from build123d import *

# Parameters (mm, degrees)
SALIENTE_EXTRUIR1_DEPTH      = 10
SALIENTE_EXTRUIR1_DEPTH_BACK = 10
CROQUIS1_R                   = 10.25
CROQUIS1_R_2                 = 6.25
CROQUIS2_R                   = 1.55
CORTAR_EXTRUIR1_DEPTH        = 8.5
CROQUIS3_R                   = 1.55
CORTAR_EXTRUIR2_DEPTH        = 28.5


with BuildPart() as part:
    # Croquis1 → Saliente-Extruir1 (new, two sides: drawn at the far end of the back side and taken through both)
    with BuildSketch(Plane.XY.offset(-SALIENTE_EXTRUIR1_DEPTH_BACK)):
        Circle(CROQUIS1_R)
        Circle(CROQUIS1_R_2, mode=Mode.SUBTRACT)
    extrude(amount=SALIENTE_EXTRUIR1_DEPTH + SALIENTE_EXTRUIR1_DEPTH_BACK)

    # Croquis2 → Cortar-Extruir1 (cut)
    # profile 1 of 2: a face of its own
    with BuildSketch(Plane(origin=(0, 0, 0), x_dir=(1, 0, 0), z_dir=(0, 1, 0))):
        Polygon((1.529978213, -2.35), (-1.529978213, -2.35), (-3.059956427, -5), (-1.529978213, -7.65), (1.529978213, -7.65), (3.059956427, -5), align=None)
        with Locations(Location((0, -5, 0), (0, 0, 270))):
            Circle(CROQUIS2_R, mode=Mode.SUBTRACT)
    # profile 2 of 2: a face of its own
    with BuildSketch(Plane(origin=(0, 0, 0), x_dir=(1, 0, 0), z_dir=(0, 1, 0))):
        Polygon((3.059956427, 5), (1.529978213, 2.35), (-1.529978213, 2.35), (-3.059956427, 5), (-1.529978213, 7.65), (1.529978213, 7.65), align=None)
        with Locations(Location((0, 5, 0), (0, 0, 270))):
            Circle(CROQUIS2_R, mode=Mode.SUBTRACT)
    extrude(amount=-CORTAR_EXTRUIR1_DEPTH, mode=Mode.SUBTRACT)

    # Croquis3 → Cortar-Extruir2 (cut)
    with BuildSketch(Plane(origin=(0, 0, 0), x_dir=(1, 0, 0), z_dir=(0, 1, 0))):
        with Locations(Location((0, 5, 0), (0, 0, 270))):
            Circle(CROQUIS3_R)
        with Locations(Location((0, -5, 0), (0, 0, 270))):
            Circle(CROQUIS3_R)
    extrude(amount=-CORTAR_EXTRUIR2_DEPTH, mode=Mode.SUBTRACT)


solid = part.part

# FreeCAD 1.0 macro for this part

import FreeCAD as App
import Part
import Sketcher
from FreeCAD import Vector
Q = App.Units.Quantity

doc = App.newDocument("Part")
params = doc.addObject("Spreadsheet::Sheet", "Params")
for row, (alias, value) in enumerate([
    ("sketch1_diameter", "20.5 mm"),
    ("sketch1_diameter2", "12.5 mm"),
    ("pad1_length", "10 mm"),
    ("pad1_length2", "10 mm"),
    ("sketch2_diameter", "3.1 mm"),
    ("pocket1_length", "8.5 mm"),
    ("sketch3_diameter", "3.1 mm"),
    ("pocket2_length", "28.5 mm"),
], start=1):
    params.set(f"A{row}", alias)
    params.set(f"B{row}", "=" + value)
    params.setAlias(f"B{row}", alias)

body = doc.addObject("PartDesign::Body", "Body")

# Sketch on XY plane
sketch1 = body.newObject("Sketcher::SketchObject", "Sketch")
sketch1.AttachmentSupport = (doc.getObject("XY_Plane"), [""])
sketch1.MapMode = "FlatFace"
sketch1.addGeometry(Part.Circle(Vector(0, 0, 0), Vector(0, 0, 1), 10), False)
sketch1.addGeometry(Part.Circle(Vector(0, 0, 0), Vector(0, 0, 1), 6), False)
sketch1.addConstraint(Sketcher.Constraint("Coincident", 0, 3, -1, 1))
sketch1.addConstraint(Sketcher.Constraint("Coincident", 1, 3, -1, 1))
sketch1.addConstraint(Sketcher.Constraint("Diameter", 0, 20.5))
sketch1.addConstraint(Sketcher.Constraint("Diameter", 1, 12.5))
sketch1.setExpression("Constraints[2]", "Params.sketch1_diameter")
sketch1.setExpression("Constraints[3]", "Params.sketch1_diameter2")
pad1 = body.newObject("PartDesign::Pad", "Pad")
pad1.Profile = sketch1
pad1.Type = "TwoLengths"
pad1.setExpression("Length", "Params.pad1_length")
pad1.setExpression("Length2", "Params.pad1_length2")

# Sketch on XZ plane
sketch2 = body.newObject("Sketcher::SketchObject", "Sketch001")
sketch2.AttachmentSupport = (doc.getObject("XZ_Plane"), [""])
sketch2.MapMode = "FlatFace"
sketch2.addGeometry(Part.LineSegment(Vector(1.5, 2.4, 0), Vector(-1.5, 2.4, 0)), False)
sketch2.addGeometry(Part.LineSegment(Vector(-1.5, 2.4, 0), Vector(-3.1, 5, 0)), False)
sketch2.addGeometry(Part.LineSegment(Vector(-3.1, 5, 0), Vector(-1.5, 7.7, 0)), False)
sketch2.addGeometry(Part.LineSegment(Vector(-1.5, 7.7, 0), Vector(1.5, 7.7, 0)), False)
sketch2.addGeometry(Part.LineSegment(Vector(1.5, 7.7, 0), Vector(3.1, 5, 0)), False)
sketch2.addGeometry(Part.LineSegment(Vector(3.1, 5, 0), Vector(1.5, 2.4, 0)), False)
sketch2.addGeometry(Part.Circle(Vector(0, 5, 0), Vector(0, 0, 1), 1.6), False)
sketch2.addGeometry(Part.LineSegment(Vector(1.5, -2.4, 0), Vector(3.1, -5, 0)), False)
sketch2.addGeometry(Part.LineSegment(Vector(3.1, -5, 0), Vector(1.5, -7.7, 0)), False)
sketch2.addGeometry(Part.LineSegment(Vector(1.5, -7.7, 0), Vector(-1.5, -7.7, 0)), False)
sketch2.addGeometry(Part.LineSegment(Vector(-1.5, -7.7, 0), Vector(-3.1, -5, 0)), False)
sketch2.addGeometry(Part.LineSegment(Vector(-3.1, -5, 0), Vector(-1.5, -2.4, 0)), False)
sketch2.addGeometry(Part.LineSegment(Vector(-1.5, -2.4, 0), Vector(1.5, -2.4, 0)), False)
sketch2.addGeometry(Part.Circle(Vector(0, -5, 0), Vector(0, 0, 1), 1.6), False)
sketch2.addConstraint(Sketcher.Constraint("Coincident", 0, 2, 1, 1))
sketch2.addConstraint(Sketcher.Constraint("Coincident", 1, 2, 2, 1))
sketch2.addConstraint(Sketcher.Constraint("Coincident", 2, 2, 3, 1))
sketch2.addConstraint(Sketcher.Constraint("Coincident", 3, 2, 4, 1))
sketch2.addConstraint(Sketcher.Constraint("Coincident", 4, 2, 5, 1))
sketch2.addConstraint(Sketcher.Constraint("Coincident", 5, 2, 0, 1))
sketch2.addConstraint(Sketcher.Constraint("Coincident", 7, 2, 8, 1))
sketch2.addConstraint(Sketcher.Constraint("Coincident", 8, 2, 9, 1))
sketch2.addConstraint(Sketcher.Constraint("Coincident", 9, 2, 10, 1))
sketch2.addConstraint(Sketcher.Constraint("Coincident", 10, 2, 11, 1))
sketch2.addConstraint(Sketcher.Constraint("Coincident", 11, 2, 12, 1))
sketch2.addConstraint(Sketcher.Constraint("Coincident", 12, 2, 7, 1))
sketch2.addConstraint(Sketcher.Constraint("Horizontal", 0))
sketch2.addConstraint(Sketcher.Constraint("Horizontal", 3))
sketch2.addConstraint(Sketcher.Constraint("Horizontal", 9))
sketch2.addConstraint(Sketcher.Constraint("Horizontal", 12))
sketch2.addConstraint(Sketcher.Constraint("Equal", 6, 13))
sketch2.addConstraint(Sketcher.Constraint("Symmetric", 6, 3, 13, 3, -1, 1))
sketch2.addConstraint(Sketcher.Constraint("Symmetric", 1, 2, 7, 2, -1, 1))
sketch2.addConstraint(Sketcher.Constraint("Symmetric", 2, 2, 8, 2, -1, 1))
sketch2.addConstraint(Sketcher.Constraint("Symmetric", 4, 2, 10, 2, -1, 1))
sketch2.addConstraint(Sketcher.Constraint("Symmetric", 5, 2, 11, 2, -1, 1))
sketch2.addConstraint(Sketcher.Constraint("Symmetric", 1, 2, 4, 2, -2))
sketch2.addConstraint(Sketcher.Constraint("PointOnObject", 6, 3, -2))
sketch2.addConstraint(Sketcher.Constraint("Parallel", 1, 4))
sketch2.addConstraint(Sketcher.Constraint("Parallel", 2, 5))
sketch2.addConstraint(Sketcher.Constraint("Parallel", 4, 7))
sketch2.addConstraint(Sketcher.Constraint("Parallel", 7, 10))
sketch2.addConstraint(Sketcher.Constraint("Horizontal", 6, 3, 1, 2))
sketch2.addConstraint(Sketcher.Constraint("Vertical", 0, 2, 2, 2))
sketch2.addConstraint(Sketcher.Constraint("Vertical", 3, 2, 5, 2))
sketch2.addConstraint(Sketcher.Constraint("Diameter", 6, 3.1))
sketch2.addConstraint(Sketcher.Constraint("Angle", 1, Q("120 deg")))
sketch2.addConstraint(Sketcher.Constraint("DistanceY", -1, 1, 6, 3, 5.0))
sketch2.addConstraint(Sketcher.Constraint("DistanceY", 0, 2, 2, 2, 5.3))
sketch2.addConstraint(Sketcher.Constraint("DistanceX", 0, 2, 0, 1, 3.059956))
sketch2.setExpression("Constraints[31]", "Params.sketch2_diameter")
pocket1 = body.newObject("PartDesign::Pocket", "Pocket")
pocket1.Profile = sketch2
pocket1.setExpression("Length", "Params.pocket1_length")
pocket1.Reversed = True

# Sketch on XZ plane
sketch3 = body.newObject("Sketcher::SketchObject", "Sketch002")
sketch3.AttachmentSupport = (doc.getObject("XZ_Plane"), [""])
sketch3.MapMode = "FlatFace"
sketch3.addGeometry(Part.Circle(Vector(0, -5, 0), Vector(0, 0, 1), 1.6), False)
sketch3.addGeometry(Part.Circle(Vector(0, 5, 0), Vector(0, 0, 1), 1.6), False)
sketch3.addConstraint(Sketcher.Constraint("Equal", 0, 1))
sketch3.addConstraint(Sketcher.Constraint("Symmetric", 0, 3, 1, 3, -1, 1))
sketch3.addConstraint(Sketcher.Constraint("PointOnObject", 0, 3, -2))
sketch3.addConstraint(Sketcher.Constraint("Diameter", 0, 3.1))
sketch3.addConstraint(Sketcher.Constraint("DistanceY", 0, 3, -1, 1, 5.0))
sketch3.setExpression("Constraints[3]", "Params.sketch3_diameter")
pocket2 = body.newObject("PartDesign::Pocket", "Pocket001")
pocket2.Profile = sketch3
pocket2.setExpression("Length", "Params.pocket2_length")
pocket2.Reversed = True

doc.recompute()
